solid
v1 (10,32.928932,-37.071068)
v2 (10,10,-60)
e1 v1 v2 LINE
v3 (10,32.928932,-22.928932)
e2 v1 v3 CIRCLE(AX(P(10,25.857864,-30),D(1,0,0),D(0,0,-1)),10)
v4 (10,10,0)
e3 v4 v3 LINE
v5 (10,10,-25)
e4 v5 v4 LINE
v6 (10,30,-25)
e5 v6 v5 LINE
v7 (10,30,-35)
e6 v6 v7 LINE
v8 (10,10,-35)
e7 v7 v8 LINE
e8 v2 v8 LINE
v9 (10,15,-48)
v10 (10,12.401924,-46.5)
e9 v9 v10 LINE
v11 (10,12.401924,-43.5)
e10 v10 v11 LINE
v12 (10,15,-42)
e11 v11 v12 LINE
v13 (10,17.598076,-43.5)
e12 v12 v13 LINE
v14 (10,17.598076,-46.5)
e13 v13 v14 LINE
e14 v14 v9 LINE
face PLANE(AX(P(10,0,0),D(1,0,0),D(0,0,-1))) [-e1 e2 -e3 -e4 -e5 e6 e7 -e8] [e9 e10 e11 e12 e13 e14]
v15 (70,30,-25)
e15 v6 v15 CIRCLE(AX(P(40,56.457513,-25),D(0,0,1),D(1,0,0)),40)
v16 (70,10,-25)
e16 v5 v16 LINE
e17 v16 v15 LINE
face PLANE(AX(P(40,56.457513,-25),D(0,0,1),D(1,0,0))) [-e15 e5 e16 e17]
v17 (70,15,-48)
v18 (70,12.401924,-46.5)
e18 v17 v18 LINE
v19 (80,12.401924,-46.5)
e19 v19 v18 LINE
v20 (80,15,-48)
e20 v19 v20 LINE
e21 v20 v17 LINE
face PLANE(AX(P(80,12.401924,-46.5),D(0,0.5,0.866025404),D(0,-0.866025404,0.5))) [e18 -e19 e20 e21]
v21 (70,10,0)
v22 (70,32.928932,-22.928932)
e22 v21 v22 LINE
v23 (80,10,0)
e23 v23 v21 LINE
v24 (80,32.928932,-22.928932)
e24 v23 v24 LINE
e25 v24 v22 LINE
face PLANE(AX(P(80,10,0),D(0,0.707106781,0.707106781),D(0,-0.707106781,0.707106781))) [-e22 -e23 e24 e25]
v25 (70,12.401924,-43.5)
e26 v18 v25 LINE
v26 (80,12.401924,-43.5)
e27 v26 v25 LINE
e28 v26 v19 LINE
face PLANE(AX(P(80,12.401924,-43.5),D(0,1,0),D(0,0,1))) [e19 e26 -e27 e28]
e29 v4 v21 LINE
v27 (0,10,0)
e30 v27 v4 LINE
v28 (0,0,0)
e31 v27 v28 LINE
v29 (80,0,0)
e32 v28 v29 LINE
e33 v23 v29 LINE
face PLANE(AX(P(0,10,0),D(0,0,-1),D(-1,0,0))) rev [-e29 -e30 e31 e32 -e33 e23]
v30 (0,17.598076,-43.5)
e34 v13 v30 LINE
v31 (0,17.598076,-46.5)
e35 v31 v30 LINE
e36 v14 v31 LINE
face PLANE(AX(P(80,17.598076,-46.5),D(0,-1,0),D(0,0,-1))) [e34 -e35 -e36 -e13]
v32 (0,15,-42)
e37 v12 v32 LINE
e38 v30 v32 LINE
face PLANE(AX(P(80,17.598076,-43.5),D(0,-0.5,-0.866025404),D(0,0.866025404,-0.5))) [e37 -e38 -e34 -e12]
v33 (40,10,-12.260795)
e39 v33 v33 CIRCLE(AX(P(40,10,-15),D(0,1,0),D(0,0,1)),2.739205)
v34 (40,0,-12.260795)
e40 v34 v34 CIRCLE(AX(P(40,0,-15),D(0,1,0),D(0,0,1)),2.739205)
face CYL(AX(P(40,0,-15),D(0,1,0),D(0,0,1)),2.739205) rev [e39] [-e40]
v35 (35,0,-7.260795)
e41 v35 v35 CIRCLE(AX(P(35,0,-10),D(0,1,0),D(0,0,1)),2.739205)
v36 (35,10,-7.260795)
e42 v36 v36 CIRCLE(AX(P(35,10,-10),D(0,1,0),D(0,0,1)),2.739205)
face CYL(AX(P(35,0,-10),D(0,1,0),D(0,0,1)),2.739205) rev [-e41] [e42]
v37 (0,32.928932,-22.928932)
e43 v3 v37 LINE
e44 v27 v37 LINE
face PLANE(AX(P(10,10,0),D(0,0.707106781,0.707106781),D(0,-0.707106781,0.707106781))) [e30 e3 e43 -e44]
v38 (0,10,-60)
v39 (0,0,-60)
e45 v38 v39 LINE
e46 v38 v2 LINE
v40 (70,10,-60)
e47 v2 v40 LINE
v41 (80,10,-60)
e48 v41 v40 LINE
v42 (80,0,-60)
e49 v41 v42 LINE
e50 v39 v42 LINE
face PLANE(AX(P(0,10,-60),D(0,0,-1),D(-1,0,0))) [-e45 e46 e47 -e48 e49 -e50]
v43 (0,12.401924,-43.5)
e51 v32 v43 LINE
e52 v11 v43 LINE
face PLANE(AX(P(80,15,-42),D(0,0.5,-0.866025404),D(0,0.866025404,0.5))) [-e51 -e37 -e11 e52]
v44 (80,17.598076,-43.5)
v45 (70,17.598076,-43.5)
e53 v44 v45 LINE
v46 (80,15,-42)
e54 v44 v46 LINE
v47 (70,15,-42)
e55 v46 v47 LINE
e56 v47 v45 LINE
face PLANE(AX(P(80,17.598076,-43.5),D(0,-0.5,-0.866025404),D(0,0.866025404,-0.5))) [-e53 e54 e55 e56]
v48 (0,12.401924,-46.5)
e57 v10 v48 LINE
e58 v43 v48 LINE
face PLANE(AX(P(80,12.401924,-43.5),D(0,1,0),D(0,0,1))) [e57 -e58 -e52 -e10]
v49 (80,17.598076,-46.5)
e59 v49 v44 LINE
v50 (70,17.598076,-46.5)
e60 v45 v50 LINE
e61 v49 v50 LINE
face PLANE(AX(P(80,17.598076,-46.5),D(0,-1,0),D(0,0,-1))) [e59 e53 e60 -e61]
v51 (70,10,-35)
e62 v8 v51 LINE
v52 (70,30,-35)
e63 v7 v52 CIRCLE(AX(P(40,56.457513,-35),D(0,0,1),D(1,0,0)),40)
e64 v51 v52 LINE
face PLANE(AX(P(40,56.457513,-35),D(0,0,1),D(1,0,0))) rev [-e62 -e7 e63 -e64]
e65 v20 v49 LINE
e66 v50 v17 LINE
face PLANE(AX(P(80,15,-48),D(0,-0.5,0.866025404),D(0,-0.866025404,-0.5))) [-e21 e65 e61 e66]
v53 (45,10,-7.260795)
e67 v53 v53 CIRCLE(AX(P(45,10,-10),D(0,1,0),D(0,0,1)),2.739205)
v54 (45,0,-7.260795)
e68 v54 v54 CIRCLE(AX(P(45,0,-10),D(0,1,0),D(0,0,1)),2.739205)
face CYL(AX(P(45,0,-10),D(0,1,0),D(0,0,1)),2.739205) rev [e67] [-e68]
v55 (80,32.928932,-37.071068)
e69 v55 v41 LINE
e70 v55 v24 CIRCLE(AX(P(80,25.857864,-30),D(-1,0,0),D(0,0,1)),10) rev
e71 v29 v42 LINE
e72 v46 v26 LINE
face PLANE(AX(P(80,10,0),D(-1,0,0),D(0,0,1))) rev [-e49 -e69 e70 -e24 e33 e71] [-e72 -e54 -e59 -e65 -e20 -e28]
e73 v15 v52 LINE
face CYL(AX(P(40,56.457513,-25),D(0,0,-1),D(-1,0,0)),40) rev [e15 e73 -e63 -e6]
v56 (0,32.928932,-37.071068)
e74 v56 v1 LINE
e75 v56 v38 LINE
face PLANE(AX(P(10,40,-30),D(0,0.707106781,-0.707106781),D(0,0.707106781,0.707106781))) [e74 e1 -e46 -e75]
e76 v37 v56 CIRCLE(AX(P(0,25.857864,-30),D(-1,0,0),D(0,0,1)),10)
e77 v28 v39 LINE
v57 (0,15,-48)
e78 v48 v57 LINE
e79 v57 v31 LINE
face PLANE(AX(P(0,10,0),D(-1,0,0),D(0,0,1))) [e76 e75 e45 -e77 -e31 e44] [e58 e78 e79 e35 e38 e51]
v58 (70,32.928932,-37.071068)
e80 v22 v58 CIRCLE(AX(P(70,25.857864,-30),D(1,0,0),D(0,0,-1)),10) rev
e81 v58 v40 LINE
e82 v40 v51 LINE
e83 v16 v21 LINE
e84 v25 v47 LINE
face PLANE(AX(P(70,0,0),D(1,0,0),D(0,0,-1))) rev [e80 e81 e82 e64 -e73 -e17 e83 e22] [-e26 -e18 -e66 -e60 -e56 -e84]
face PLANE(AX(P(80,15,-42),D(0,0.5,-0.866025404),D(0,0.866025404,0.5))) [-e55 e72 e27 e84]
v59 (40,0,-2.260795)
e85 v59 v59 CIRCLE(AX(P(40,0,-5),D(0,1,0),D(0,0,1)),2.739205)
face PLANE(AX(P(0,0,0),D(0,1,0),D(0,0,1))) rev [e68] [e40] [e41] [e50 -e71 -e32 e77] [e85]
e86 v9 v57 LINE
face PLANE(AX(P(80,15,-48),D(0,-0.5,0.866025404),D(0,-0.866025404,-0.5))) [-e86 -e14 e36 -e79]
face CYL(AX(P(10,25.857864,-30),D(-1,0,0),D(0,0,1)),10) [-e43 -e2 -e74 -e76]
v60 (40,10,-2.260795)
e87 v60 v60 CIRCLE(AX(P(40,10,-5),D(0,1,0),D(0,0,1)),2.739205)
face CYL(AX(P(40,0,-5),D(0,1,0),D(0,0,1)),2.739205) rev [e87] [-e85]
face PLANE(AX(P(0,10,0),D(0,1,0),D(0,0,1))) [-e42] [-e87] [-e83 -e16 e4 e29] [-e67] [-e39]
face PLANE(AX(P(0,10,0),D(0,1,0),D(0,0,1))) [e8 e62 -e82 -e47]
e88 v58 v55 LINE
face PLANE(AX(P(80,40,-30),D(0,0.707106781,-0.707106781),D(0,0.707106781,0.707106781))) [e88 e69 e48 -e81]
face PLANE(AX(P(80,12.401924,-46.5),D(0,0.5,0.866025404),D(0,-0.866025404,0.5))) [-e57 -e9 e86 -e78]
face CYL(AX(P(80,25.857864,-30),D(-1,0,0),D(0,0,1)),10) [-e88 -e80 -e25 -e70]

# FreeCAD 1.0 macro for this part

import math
import FreeCAD as App
import Part
import Sketcher
Q = App.Units.Quantity


def edges_at(feature, points):
    """Names of the edges that pass closest to the given points."""
    edges = feature.Shape.Edges
    near = lambda p: min(range(len(edges)), key=lambda i: edges[i].distToShape(Part.Vertex(*p))[0])
    return sorted({f"Edge{near(p) + 1}" for p in points})

doc = App.newDocument("Part")
body = doc.addObject("PartDesign::Body", "Body")

# Sketch on XZ plane
sketch1 = body.newObject("Sketcher::SketchObject", "Sketch")
sketch1.AttachmentSupport = (doc.getObject("XZ_Plane"), [""])
sketch1.MapMode = "FlatFace"
sketch1.addGeometry(Part.LineSegment(App.Vector(0, -60, 0), App.Vector(0, 0, 0)), False)
sketch1.addGeometry(Part.LineSegment(App.Vector(0, 0, 0), App.Vector(80, 0, 0)), False)
sketch1.addGeometry(Part.LineSegment(App.Vector(80, 0, 0), App.Vector(80, -60, 0)), False)
sketch1.addGeometry(Part.LineSegment(App.Vector(80, -60, 0), App.Vector(0, -60, 0)), False)
sketch1.addConstraint(Sketcher.Constraint("Coincident", 0, 2, 1, 1))
sketch1.addConstraint(Sketcher.Constraint("Coincident", 1, 2, 2, 1))
sketch1.addConstraint(Sketcher.Constraint("Coincident", 2, 2, 3, 1))
sketch1.addConstraint(Sketcher.Constraint("Coincident", 3, 2, 0, 1))
sketch1.addConstraint(Sketcher.Constraint("Vertical", 0))
sketch1.addConstraint(Sketcher.Constraint("Horizontal", 1))
sketch1.addConstraint(Sketcher.Constraint("Vertical", 2))
sketch1.addConstraint(Sketcher.Constraint("Horizontal", 3))
sketch1.addConstraint(Sketcher.Constraint("Coincident", 0, 2, -1, 1))
sketch1.addConstraint(Sketcher.Constraint("DistanceX", 1, 1, 1, 2, Q("80 mm")))
sketch1.addConstraint(Sketcher.Constraint("DistanceY", 0, 1, 0, 2, Q("60 mm")))
pad1 = body.newObject("PartDesign::Pad", "Pad")
pad1.Profile = sketch1
pad1.Length = 10
pad1.Reversed = True

# Sketch on YZ plane
sketch2 = body.newObject("Sketcher::SketchObject", "Sketch001")
sketch2.AttachmentSupport = (doc.getObject("YZ_Plane"), [""])
sketch2.MapMode = "FlatFace"
sketch2.addGeometry(Part.LineSegment(App.Vector(40, -30, 0), App.Vector(10, 0, 0)), False)
sketch2.addGeometry(Part.LineSegment(App.Vector(10, 0, 0), App.Vector(10, -60, 0)), False)
sketch2.addGeometry(Part.LineSegment(App.Vector(10, -60, 0), App.Vector(40, -30, 0)), False)
sketch2.addConstraint(Sketcher.Constraint("Coincident", 0, 2, 1, 1))
sketch2.addConstraint(Sketcher.Constraint("Coincident", 1, 2, 2, 1))
sketch2.addConstraint(Sketcher.Constraint("Coincident", 2, 2, 0, 1))
sketch2.addConstraint(Sketcher.Constraint("Vertical", 1))
sketch2.addConstraint(Sketcher.Constraint("PointOnObject", 0, 2, -1))
sketch2.addConstraint(Sketcher.Constraint("Perpendicular", 0, 2))
sketch2.addConstraint(Sketcher.Constraint("Equal", 0, 2))
sketch2.addConstraint(Sketcher.Constraint("DistanceY", 1, 2, 1, 1, Q("60 mm")))
sketch2.addConstraint(Sketcher.Constraint("DistanceX", -1, 1, 0, 2, Q("10 mm")))
pad2 = body.newObject("PartDesign::Pad", "Pad001")
pad2.Profile = sketch2
pad2.Length = 10
doc.recompute()

linearpattern = body.newObject("PartDesign::LinearPattern", "LinearPattern")
linearpattern.Originals = [pad2]
linearpattern.Direction = (doc.getObject("X_Axis"), [""])
linearpattern.Mode = "offset"
linearpattern.Offset = 70
linearpattern.Occurrences = 2
body.Tip = linearpattern

# Sketch on XY plane
sketch3 = body.newObject("Sketcher::SketchObject", "Sketch002")
sketch3.AttachmentSupport = (doc.getObject("XY_Plane"), [""])
sketch3.MapMode = "FlatFace"
sketch3.AttachmentOffset = App.Placement(App.Vector(0, 0, -30), App.Rotation())
sketch3.addGeometry(Part.LineSegment(App.Vector(10, 30, 0), App.Vector(10, 10, 0)), False)
sketch3.addGeometry(Part.LineSegment(App.Vector(10, 10, 0), App.Vector(70, 10, 0)), False)
sketch3.addGeometry(Part.LineSegment(App.Vector(70, 10, 0), App.Vector(70, 30, 0)), False)
sketch3.addGeometry(Part.ArcOfCircle(Part.Circle(App.Vector(40, 56, 0), App.Vector(0, 0, 1), 40), math.radians(-139), math.radians(-41)), False)
sketch3.addConstraint(Sketcher.Constraint("Coincident", 0, 2, 1, 1))
sketch3.addConstraint(Sketcher.Constraint("Coincident", 1, 2, 2, 1))
sketch3.addConstraint(Sketcher.Constraint("Coincident", 2, 2, 3, 2))
sketch3.addConstraint(Sketcher.Constraint("Coincident", 3, 1, 0, 1))
sketch3.addConstraint(Sketcher.Constraint("Vertical", 0))
sketch3.addConstraint(Sketcher.Constraint("Horizontal", 1))
sketch3.addConstraint(Sketcher.Constraint("Vertical", 2))
sketch3.addConstraint(Sketcher.Constraint("Horizontal", 2, 2, 3, 1))
sketch3.addConstraint(Sketcher.Constraint("Radius", 3, Q("40 mm")))
sketch3.addConstraint(Sketcher.Constraint("DistanceX", 1, 1, 1, 2, Q("60 mm")))
sketch3.addConstraint(Sketcher.Constraint("DistanceY", 0, 2, 0, 1, Q("20 mm")))
sketch3.addConstraint(Sketcher.Constraint("DistanceX", -1, 1, 3, 3, Q("40 mm")))
sketch3.addConstraint(Sketcher.Constraint("DistanceY", -1, 1, 0, 2, Q("10 mm")))
pad3 = body.newObject("PartDesign::Pad", "Pad002")
pad3.Profile = sketch3
pad3.Length = 10
pad3.Midplane = True
doc.recompute()

fillet = body.newObject("PartDesign::Fillet", "Fillet")
fillet.Base = (pad3, edges_at(pad3, [(5, 40, -30), (75, 40, -30)]))
fillet.Radius = 10

# Sketch on XZ plane
sketch4 = body.newObject("Sketcher::SketchObject", "Sketch003")
sketch4.AttachmentSupport = (doc.getObject("XZ_Plane"), [""])
sketch4.MapMode = "FlatFace"
sketch4.AttachmentOffset = App.Placement(App.Vector(0, 0, -10), App.Rotation())
sketch4.addGeometry(Part.Circle(App.Vector(40, -15, 0), App.Vector(0, 0, 1), 2.7), False)
sketch4.addGeometry(Part.Circle(App.Vector(45, -10, 0), App.Vector(0, 0, 1), 2.7), False)
sketch4.addGeometry(Part.Circle(App.Vector(40, -5, 0), App.Vector(0, 0, 1), 2.7), False)
sketch4.addGeometry(Part.Circle(App.Vector(35, -10, 0), App.Vector(0, 0, 1), 2.7), False)
sketch4.addConstraint(Sketcher.Constraint("Equal", 0, 1))
sketch4.addConstraint(Sketcher.Constraint("Equal", 1, 2))
sketch4.addConstraint(Sketcher.Constraint("Equal", 2, 3))
sketch4.addConstraint(Sketcher.Constraint("Horizontal", 1, 3, 3, 3))
sketch4.addConstraint(Sketcher.Constraint("Vertical", 0, 3, 2, 3))
sketch4.addConstraint(Sketcher.Constraint("DistanceX", -1, 1, 0, 3, Q("40 mm")))
sketch4.addConstraint(Sketcher.Constraint("DistanceY", 0, 3, -1, 1, Q("15 mm")))
sketch4.addConstraint(Sketcher.Constraint("DistanceX", -1, 1, 1, 3, Q("45 mm")))
sketch4.addConstraint(Sketcher.Constraint("DistanceY", 1, 3, -1, 1, Q("10 mm")))
sketch4.addConstraint(Sketcher.Constraint("DistanceY", 2, 3, -1, 1, Q("5 mm")))
sketch4.addConstraint(Sketcher.Constraint("DistanceX", -1, 1, 3, 3, Q("35 mm")))
sketch4.addConstraint(Sketcher.Constraint("Diameter", 0, Q("5.47841 mm")))
pocket1 = body.newObject("PartDesign::Pocket", "Pocket")
pocket1.Profile = sketch4
pocket1.Type = "ThroughAll"
pocket1.Reversed = True

# Sketch on YZ plane
sketch5 = body.newObject("Sketcher::SketchObject", "Sketch004")
sketch5.AttachmentSupport = (doc.getObject("YZ_Plane"), [""])
sketch5.MapMode = "FlatFace"
sketch5.addGeometry(Part.LineSegment(App.Vector(12.4, -46.5, 0), App.Vector(15, -48, 0)), False)
sketch5.addGeometry(Part.LineSegment(App.Vector(15, -48, 0), App.Vector(17.6, -46.5, 0)), False)
sketch5.addGeometry(Part.LineSegment(App.Vector(17.6, -46.5, 0), App.Vector(17.6, -43.5, 0)), False)
sketch5.addGeometry(Part.LineSegment(App.Vector(17.6, -43.5, 0), App.Vector(15, -42, 0)), False)
sketch5.addGeometry(Part.LineSegment(App.Vector(15, -42, 0), App.Vector(12.4, -43.5, 0)), False)
sketch5.addGeometry(Part.LineSegment(App.Vector(12.4, -43.5, 0), App.Vector(12.4, -46.5, 0)), False)
sketch5.addConstraint(Sketcher.Constraint("Coincident", 0, 2, 1, 1))
sketch5.addConstraint(Sketcher.Constraint("Coincident", 1, 2, 2, 1))
sketch5.addConstraint(Sketcher.Constraint("Coincident", 2, 2, 3, 1))
sketch5.addConstraint(Sketcher.Constraint("Coincident", 3, 2, 4, 1))
sketch5.addConstraint(Sketcher.Constraint("Coincident", 4, 2, 5, 1))
sketch5.addConstraint(Sketcher.Constraint("Coincident", 5, 2, 0, 1))
sketch5.addConstraint(Sketcher.Constraint("Vertical", 2))
sketch5.addConstraint(Sketcher.Constraint("Vertical", 5))
sketch5.addConstraint(Sketcher.Constraint("Parallel", 0, 3))
sketch5.addConstraint(Sketcher.Constraint("Parallel", 1, 4))
sketch5.addConstraint(Sketcher.Constraint("Horizontal", 2, 2, 4, 2))
sketch5.addConstraint(Sketcher.Constraint("Horizontal", 1, 2, 5, 2))
sketch5.addConstraint(Sketcher.Constraint("Vertical", 0, 2, 3, 2))
sketch5.addConstraint(Sketcher.Constraint("DistanceY", 2, 1, 2, 2, Q("3 mm")))
sketch5.addConstraint(Sketcher.Constraint("Angle", 0, Q("-30 deg")))
sketch5.addConstraint(Sketcher.Constraint("Distance", 0, Q("3 mm")))
sketch5.addConstraint(Sketcher.Constraint("DistanceX", -1, 1, 0, 2, Q("15 mm")))
sketch5.addConstraint(Sketcher.Constraint("DistanceY", 0, 2, -1, 1, Q("48 mm")))
pocket2 = body.newObject("PartDesign::Pocket", "Pocket001")
pocket2.Profile = sketch5
pocket2.Type = "ThroughAll"
pocket2.Reversed = True

doc.recompute()
